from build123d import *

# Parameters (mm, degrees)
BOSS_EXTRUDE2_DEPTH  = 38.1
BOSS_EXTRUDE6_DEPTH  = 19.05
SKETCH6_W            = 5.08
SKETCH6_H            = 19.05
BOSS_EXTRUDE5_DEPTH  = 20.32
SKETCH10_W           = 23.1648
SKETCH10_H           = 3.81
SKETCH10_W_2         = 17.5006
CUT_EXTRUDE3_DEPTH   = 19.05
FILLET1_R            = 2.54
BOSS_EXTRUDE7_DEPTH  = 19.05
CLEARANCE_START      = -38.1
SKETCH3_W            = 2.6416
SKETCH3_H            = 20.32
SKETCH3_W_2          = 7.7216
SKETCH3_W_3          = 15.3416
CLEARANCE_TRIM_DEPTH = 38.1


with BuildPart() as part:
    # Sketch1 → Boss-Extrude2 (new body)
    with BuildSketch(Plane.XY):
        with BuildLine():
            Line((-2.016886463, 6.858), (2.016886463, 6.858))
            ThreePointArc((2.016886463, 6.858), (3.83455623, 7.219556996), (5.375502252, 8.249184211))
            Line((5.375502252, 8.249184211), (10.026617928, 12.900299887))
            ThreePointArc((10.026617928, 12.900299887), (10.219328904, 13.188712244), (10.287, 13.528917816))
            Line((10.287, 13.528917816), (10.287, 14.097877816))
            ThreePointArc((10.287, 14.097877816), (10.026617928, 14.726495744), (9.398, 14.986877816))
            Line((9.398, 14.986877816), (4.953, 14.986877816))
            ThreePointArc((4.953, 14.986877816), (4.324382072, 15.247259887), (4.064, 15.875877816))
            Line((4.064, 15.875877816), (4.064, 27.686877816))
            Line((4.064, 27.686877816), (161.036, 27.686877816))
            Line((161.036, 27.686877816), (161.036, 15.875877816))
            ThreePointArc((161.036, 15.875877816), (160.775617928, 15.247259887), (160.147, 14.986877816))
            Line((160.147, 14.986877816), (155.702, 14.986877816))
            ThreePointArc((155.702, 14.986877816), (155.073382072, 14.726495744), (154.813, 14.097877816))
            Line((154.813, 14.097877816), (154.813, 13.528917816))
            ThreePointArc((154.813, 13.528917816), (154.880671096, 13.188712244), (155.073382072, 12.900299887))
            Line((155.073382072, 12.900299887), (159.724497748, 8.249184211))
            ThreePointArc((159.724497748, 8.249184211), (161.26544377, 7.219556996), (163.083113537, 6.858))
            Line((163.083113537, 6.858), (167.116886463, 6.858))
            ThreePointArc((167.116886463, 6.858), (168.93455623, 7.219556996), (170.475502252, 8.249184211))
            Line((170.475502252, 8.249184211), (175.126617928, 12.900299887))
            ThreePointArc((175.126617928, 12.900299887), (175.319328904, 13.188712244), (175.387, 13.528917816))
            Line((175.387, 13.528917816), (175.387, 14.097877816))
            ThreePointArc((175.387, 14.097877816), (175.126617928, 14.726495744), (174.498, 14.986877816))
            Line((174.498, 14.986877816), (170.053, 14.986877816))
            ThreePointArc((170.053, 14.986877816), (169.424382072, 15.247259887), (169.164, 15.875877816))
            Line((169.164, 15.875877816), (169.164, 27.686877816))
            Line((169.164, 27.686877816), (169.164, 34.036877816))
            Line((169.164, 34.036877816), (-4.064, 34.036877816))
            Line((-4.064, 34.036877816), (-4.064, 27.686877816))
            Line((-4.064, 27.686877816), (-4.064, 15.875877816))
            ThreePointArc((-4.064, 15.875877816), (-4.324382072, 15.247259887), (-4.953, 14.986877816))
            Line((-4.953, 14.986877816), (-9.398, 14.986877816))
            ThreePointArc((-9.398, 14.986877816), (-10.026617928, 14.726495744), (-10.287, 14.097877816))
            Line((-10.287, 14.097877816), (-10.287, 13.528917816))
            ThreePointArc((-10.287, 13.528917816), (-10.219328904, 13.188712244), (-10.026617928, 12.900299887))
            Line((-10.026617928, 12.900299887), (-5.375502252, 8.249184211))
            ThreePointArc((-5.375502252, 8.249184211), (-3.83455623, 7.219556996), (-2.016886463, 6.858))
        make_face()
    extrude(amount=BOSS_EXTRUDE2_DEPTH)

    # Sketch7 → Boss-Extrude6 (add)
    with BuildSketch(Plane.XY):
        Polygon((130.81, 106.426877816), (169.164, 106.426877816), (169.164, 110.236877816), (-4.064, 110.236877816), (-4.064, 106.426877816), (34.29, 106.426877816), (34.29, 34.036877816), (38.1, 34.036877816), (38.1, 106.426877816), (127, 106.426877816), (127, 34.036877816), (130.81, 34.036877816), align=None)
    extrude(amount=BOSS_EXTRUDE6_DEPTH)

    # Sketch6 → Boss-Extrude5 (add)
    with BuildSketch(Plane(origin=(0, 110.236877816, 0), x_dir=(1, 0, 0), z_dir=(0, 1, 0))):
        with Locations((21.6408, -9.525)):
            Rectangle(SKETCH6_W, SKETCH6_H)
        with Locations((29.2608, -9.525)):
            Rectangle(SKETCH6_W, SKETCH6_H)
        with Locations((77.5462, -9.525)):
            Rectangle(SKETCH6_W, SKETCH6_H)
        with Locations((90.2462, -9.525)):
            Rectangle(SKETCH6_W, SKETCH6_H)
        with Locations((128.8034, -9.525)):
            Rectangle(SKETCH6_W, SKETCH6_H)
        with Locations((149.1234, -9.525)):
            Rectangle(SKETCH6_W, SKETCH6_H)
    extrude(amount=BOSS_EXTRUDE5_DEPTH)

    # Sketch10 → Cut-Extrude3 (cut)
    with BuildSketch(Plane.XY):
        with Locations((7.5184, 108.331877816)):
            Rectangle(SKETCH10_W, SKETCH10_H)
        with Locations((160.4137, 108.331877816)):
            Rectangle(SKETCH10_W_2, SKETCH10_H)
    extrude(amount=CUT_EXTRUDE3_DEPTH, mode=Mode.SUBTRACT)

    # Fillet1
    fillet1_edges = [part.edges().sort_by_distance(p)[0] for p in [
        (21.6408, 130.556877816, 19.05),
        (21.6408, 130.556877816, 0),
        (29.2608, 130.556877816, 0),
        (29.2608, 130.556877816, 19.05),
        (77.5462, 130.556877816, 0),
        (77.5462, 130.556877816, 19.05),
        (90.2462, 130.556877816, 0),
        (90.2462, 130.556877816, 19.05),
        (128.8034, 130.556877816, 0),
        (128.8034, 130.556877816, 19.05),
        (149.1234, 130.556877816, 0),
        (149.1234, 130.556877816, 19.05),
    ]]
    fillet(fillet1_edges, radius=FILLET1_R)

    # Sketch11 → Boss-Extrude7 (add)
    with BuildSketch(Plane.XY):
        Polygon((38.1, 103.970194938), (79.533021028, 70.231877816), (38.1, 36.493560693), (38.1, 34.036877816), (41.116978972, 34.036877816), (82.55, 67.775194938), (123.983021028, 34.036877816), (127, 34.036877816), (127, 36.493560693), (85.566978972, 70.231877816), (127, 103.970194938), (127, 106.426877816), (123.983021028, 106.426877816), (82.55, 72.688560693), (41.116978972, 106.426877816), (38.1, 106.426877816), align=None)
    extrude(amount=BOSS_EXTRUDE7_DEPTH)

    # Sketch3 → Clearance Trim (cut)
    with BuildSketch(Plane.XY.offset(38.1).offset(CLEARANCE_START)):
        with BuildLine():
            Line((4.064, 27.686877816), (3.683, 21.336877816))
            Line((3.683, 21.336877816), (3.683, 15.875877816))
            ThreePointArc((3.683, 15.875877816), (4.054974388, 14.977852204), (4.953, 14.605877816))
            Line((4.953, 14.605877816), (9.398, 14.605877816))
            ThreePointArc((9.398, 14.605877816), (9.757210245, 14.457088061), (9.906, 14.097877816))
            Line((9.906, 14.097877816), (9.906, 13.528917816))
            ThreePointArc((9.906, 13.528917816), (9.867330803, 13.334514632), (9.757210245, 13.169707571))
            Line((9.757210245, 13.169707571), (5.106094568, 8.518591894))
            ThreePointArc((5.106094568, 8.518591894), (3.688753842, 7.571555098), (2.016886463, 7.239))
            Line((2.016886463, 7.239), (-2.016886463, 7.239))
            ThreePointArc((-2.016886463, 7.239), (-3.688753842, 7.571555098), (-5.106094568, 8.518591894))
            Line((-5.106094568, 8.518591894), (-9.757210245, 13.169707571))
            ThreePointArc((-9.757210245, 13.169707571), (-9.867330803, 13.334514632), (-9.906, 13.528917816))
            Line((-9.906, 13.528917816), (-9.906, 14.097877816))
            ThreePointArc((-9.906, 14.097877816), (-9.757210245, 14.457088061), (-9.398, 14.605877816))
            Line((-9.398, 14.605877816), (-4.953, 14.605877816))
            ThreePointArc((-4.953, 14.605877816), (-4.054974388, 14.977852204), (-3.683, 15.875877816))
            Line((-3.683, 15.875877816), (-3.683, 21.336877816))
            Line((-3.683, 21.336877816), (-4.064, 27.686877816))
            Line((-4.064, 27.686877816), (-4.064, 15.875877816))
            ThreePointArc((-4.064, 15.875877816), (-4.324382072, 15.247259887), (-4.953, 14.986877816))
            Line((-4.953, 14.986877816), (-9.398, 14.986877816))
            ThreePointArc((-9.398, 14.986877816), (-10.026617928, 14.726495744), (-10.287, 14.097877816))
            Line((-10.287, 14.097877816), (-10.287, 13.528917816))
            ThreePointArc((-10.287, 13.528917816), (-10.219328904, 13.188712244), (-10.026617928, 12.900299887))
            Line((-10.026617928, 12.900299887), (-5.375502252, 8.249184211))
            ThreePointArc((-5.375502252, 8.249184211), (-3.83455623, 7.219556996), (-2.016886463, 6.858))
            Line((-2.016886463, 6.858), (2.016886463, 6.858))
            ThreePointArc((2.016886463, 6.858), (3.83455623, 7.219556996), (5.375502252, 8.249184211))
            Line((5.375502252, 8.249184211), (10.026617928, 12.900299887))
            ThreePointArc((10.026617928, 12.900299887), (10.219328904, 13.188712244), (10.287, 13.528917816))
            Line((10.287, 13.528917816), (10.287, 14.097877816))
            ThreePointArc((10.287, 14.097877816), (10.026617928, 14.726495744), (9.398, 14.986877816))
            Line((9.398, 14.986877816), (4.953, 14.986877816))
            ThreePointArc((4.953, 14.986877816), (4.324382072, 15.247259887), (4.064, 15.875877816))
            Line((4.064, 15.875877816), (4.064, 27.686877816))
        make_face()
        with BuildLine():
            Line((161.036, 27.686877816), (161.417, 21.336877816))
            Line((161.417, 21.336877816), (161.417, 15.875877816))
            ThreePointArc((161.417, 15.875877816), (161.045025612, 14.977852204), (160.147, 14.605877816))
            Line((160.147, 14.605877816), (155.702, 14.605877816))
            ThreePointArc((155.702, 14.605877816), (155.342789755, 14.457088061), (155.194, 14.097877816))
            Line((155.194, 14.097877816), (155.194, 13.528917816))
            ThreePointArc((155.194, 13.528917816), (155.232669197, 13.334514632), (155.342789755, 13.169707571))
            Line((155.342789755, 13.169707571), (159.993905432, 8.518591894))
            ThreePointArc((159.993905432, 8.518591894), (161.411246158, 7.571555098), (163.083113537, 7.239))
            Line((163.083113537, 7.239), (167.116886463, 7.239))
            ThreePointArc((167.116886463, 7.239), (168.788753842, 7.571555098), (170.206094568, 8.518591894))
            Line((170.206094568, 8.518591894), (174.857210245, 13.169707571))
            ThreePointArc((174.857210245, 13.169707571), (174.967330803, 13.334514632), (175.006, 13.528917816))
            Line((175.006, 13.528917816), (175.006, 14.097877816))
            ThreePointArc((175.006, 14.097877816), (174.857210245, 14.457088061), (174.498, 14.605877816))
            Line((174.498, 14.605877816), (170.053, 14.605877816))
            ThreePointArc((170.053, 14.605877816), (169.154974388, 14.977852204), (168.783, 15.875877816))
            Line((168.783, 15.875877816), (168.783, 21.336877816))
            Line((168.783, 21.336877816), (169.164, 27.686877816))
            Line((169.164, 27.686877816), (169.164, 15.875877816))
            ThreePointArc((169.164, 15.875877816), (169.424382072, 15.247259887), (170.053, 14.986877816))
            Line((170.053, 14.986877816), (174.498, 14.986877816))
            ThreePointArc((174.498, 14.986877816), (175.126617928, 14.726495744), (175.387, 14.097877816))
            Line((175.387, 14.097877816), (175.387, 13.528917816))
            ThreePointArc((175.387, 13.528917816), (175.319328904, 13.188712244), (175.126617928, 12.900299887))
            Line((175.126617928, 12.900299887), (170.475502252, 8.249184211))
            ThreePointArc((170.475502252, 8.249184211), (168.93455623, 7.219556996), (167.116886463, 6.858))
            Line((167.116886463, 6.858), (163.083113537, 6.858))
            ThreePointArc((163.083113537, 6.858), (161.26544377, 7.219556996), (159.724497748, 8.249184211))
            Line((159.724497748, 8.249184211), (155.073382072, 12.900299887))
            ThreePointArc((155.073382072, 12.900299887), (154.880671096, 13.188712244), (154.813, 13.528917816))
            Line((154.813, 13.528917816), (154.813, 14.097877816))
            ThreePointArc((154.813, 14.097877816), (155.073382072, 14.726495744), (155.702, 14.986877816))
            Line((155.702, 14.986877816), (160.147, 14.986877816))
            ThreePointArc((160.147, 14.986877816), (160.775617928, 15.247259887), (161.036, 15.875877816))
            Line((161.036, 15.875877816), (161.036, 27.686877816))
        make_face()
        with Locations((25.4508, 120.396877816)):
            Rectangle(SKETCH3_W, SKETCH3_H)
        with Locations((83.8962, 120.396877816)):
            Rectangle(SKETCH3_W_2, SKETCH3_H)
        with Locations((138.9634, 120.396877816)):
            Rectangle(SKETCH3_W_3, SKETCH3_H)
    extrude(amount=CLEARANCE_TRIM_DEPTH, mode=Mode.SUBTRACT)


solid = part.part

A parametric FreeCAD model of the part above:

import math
import FreeCAD as App
import Part
import Sketcher
from FreeCAD import Vector
Q = App.Units.Quantity


def edges_at(feature, points):
    """Names of the edges that pass closest to the given points."""
    edges = feature.Shape.Edges
    near = lambda p: min(range(len(edges)), key=lambda i: edges[i].distToShape(Part.Vertex(*p))[0])
    return sorted({f"Edge{near(p) + 1}" for p in points})


def add_polygon(sketch, points):
    """Adds a closed chain of lines whose ends are joined by coincident constraints."""
    first, n = sketch.GeometryCount, len(points)
    for a, b in zip(points, points[1:] + points[:1]):
        sketch.addGeometry(Part.LineSegment(App.Vector(*a, 0), App.Vector(*b, 0)), False)
    for i in range(n):
        sketch.addConstraint(Sketcher.Constraint("Coincident", first + i, 2, first + (i + 1) % n, 1))

doc = App.newDocument("Part")
body = doc.addObject("PartDesign::Body", "Body")

# Sketch on XY plane
sketch1 = doc.addObject("Sketcher::SketchObject", "Sketch")
body.addObject(sketch1)
sketch1.AttachmentSupport = (doc.XY_Plane, [""])
sketch1.MapMode = "FlatFace"
sketch1.addGeometry([
    Part.LineSegment(Vector(-2, 6.9, 0), Vector(2, 6.9, 0)),  # 0
    Part.ArcOfCircle(Part.Circle(Vector(2, 11.6, 0), Vector(0, 0, 1), 4.7), math.radians(-90), math.radians(-45)),  # 1
    Part.LineSegment(Vector(5.4, 8.2, 0), Vector(10, 12.9, 0)),  # 2
    Part.ArcOfCircle(Part.Circle(Vector(9.4, 13.5, 0), Vector(0, 0, 1), 0.9), math.radians(-45), math.radians(0)),  # 3
    Part.LineSegment(Vector(10.3, 13.5, 0), Vector(10.3, 14.1, 0)),  # 4
    Part.ArcOfCircle(Part.Circle(Vector(9.4, 14.1, 0), Vector(0, 0, 1), 0.9), math.radians(0), math.radians(90)),  # 5
    Part.LineSegment(Vector(9.4, 15, 0), Vector(5, 15, 0)),  # 6
    Part.ArcOfCircle(Part.Circle(Vector(5, 15.9, 0), Vector(0, 0, 1), 0.9), math.radians(180), math.radians(270)),  # 7
    Part.LineSegment(Vector(4.1, 15.9, 0), Vector(4.1, 27.7, 0)),  # 8
    Part.LineSegment(Vector(4.1, 27.7, 0), Vector(161, 27.7, 0)),  # 9
    Part.LineSegment(Vector(161, 27.7, 0), Vector(161, 15.9, 0)),  # 10
    Part.ArcOfCircle(Part.Circle(Vector(160.1, 15.9, 0), Vector(0, 0, 1), 0.9), math.radians(-90), math.radians(0)),  # 11
    Part.LineSegment(Vector(160.1, 15, 0), Vector(155.7, 15, 0)),  # 12
    Part.ArcOfCircle(Part.Circle(Vector(155.7, 14.1, 0), Vector(0, 0, 1), 0.9), math.radians(90), math.radians(180)),  # 13
    Part.LineSegment(Vector(154.8, 14.1, 0), Vector(154.8, 13.5, 0)),  # 14
    Part.ArcOfCircle(Part.Circle(Vector(155.7, 13.5, 0), Vector(0, 0, 1), 0.9), math.radians(-180), math.radians(-135)),  # 15
    Part.LineSegment(Vector(155.1, 12.9, 0), Vector(159.7, 8.2, 0)),  # 16
    Part.ArcOfCircle(Part.Circle(Vector(163.1, 11.6, 0), Vector(0, 0, 1), 4.7), math.radians(-135), math.radians(-90)),  # 17
    Part.LineSegment(Vector(163.1, 6.9, 0), Vector(167.1, 6.9, 0)),  # 18
    Part.ArcOfCircle(Part.Circle(Vector(167.1, 11.6, 0), Vector(0, 0, 1), 4.7), math.radians(-90), math.radians(-45)),  # 19
    Part.LineSegment(Vector(170.5, 8.2, 0), Vector(175.1, 12.9, 0)),  # 20
    Part.ArcOfCircle(Part.Circle(Vector(174.5, 13.5, 0), Vector(0, 0, 1), 0.9), math.radians(-45), math.radians(0)),  # 21
    Part.LineSegment(Vector(175.4, 13.5, 0), Vector(175.4, 14.1, 0)),  # 22
    Part.ArcOfCircle(Part.Circle(Vector(174.5, 14.1, 0), Vector(0, 0, 1), 0.9), math.radians(0), math.radians(90)),  # 23
    Part.LineSegment(Vector(174.5, 15, 0), Vector(170.1, 15, 0)),  # 24
    Part.ArcOfCircle(Part.Circle(Vector(170.1, 15.9, 0), Vector(0, 0, 1), 0.9), math.radians(180), math.radians(270)),  # 25
    Part.LineSegment(Vector(169.2, 15.9, 0), Vector(169.2, 34, 0)),  # 26
    Part.LineSegment(Vector(169.2, 34, 0), Vector(-4.1, 34, 0)),  # 27
    Part.LineSegment(Vector(-4.1, 34, 0), Vector(-4.1, 15.9, 0)),  # 28
    Part.ArcOfCircle(Part.Circle(Vector(-5, 15.9, 0), Vector(0, 0, 1), 0.9), math.radians(-90), math.radians(0)),  # 29
    Part.LineSegment(Vector(-5, 15, 0), Vector(-9.4, 15, 0)),  # 30
    Part.ArcOfCircle(Part.Circle(Vector(-9.4, 14.1, 0), Vector(0, 0, 1), 0.9), math.radians(90), math.radians(180)),  # 31
    Part.LineSegment(Vector(-10.3, 14.1, 0), Vector(-10.3, 13.5, 0)),  # 32
    Part.ArcOfCircle(Part.Circle(Vector(-9.4, 13.5, 0), Vector(0, 0, 1), 0.9), math.radians(-180), math.radians(-135)),  # 33
    Part.LineSegment(Vector(-10, 12.9, 0), Vector(-5.4, 8.2, 0)),  # 34
    Part.ArcOfCircle(Part.Circle(Vector(-2, 11.6, 0), Vector(0, 0, 1), 4.7), math.radians(-135), math.radians(-90)),  # 35
], False)
sketch1.addConstraint([
    Sketcher.Constraint("Tangent", 0, 2, 1, 1),
    Sketcher.Constraint("Tangent", 1, 2, 2, 1),
    Sketcher.Constraint("Tangent", 2, 2, 3, 1),
    Sketcher.Constraint("Tangent", 3, 2, 4, 1),
    Sketcher.Constraint("Tangent", 4, 2, 5, 1),
    Sketcher.Constraint("Tangent", 5, 2, 6, 1),
    Sketcher.Constraint("Tangent", 6, 2, 7, 2),
    Sketcher.Constraint("Tangent", 7, 1, 8, 1),
    Sketcher.Constraint("Coincident", 8, 2, 9, 1),
    Sketcher.Constraint("Coincident", 9, 2, 10, 1),
    Sketcher.Constraint("Tangent", 10, 2, 11, 2),
    Sketcher.Constraint("Tangent", 11, 1, 12, 1),
    Sketcher.Constraint("Tangent", 12, 2, 13, 1),
    Sketcher.Constraint("Tangent", 13, 2, 14, 1),
    Sketcher.Constraint("Tangent", 14, 2, 15, 1),
    Sketcher.Constraint("Tangent", 15, 2, 16, 1),
    Sketcher.Constraint("Tangent", 16, 2, 17, 1),
    Sketcher.Constraint("Tangent", 17, 2, 18, 1),
    Sketcher.Constraint("Tangent", 18, 2, 19, 1),
    Sketcher.Constraint("Tangent", 19, 2, 20, 1),
    Sketcher.Constraint("Tangent", 20, 2, 21, 1),
    Sketcher.Constraint("Tangent", 21, 2, 22, 1),
    Sketcher.Constraint("Tangent", 22, 2, 23, 1),
    Sketcher.Constraint("Tangent", 23, 2, 24, 1),
    Sketcher.Constraint("Tangent", 24, 2, 25, 2),
    Sketcher.Constraint("Tangent", 25, 1, 26, 1),
    Sketcher.Constraint("Coincident", 26, 2, 27, 1),
    Sketcher.Constraint("Coincident", 27, 2, 28, 1),
    Sketcher.Constraint("Tangent", 28, 2, 29, 2),
    Sketcher.Constraint("Tangent", 29, 1, 30, 1),
    Sketcher.Constraint("Tangent", 30, 2, 31, 1),
    Sketcher.Constraint("Tangent", 31, 2, 32, 1),
    Sketcher.Constraint("Tangent", 32, 2, 33, 1),
    Sketcher.Constraint("Tangent", 33, 2, 34, 1),
    Sketcher.Constraint("Tangent", 34, 2, 35, 1),
    Sketcher.Constraint("Tangent", 35, 2, 0, 1),
    Sketcher.Constraint("Horizontal", 0),
    Sketcher.Constraint("Vertical", 4),
    Sketcher.Constraint("Horizontal", 6),
    Sketcher.Constraint("Vertical", 8),
    Sketcher.Constraint("Horizontal", 9),
    Sketcher.Constraint("Vertical", 10),
    Sketcher.Constraint("Horizontal", 12),
    Sketcher.Constraint("Vertical", 14),
    Sketcher.Constraint("Horizontal", 18),
    Sketcher.Constraint("Vertical", 22),
    Sketcher.Constraint("Horizontal", 24),
    Sketcher.Constraint("Vertical", 26),
    Sketcher.Constraint("Horizontal", 27),
    Sketcher.Constraint("Vertical", 28),
    Sketcher.Constraint("Horizontal", 30),
    Sketcher.Constraint("Vertical", 32),
    Sketcher.Constraint("Equal", 3, 5),
    Sketcher.Constraint("Equal", 5, 7),
    Sketcher.Constraint("Equal", 7, 11),
    Sketcher.Constraint("Equal", 11, 13),
    Sketcher.Constraint("Equal", 13, 15),
    Sketcher.Constraint("Equal", 1, 17),
    Sketcher.Constraint("Equal", 17, 19),
    Sketcher.Constraint("Equal", 15, 21),
    Sketcher.Constraint("Equal", 21, 23),
    Sketcher.Constraint("Equal", 23, 25),
    Sketcher.Constraint("Equal", 25, 29),
    Sketcher.Constraint("Equal", 29, 31),
    Sketcher.Constraint("Equal", 31, 33),
    Sketcher.Constraint("Equal", 19, 35),
    Sketcher.Constraint("Symmetric", 7, 3, 29, 3, -2),
    Sketcher.Constraint("Symmetric", 3, 3, 33, 3, -2),
    Sketcher.Constraint("Perpendicular", 2, 16),
    Sketcher.Constraint("Perpendicular", 16, 20),
    Sketcher.Constraint("Perpendicular", 20, 34),
    Sketcher.Constraint("Horizontal", 7, 3, 11, 3),
    Sketcher.Constraint("Horizontal", 3, 3, 15, 3),
    Sketcher.Constraint("Horizontal", 1, 3, 17, 3),
    Sketcher.Constraint("Horizontal", 15, 3, 21, 3),
    Sketcher.Constraint("Horizontal", 13, 3, 23, 3),
    Sketcher.Constraint("Horizontal", 2, 2, 15, 2),
    Sketcher.Constraint("Equal", 6, 12),
    Sketcher.Constraint("Equal", 0, 18),
    Sketcher.Constraint("Equal", 12, 24),
    Sketcher.Constraint("Radius", 1, Q("0.187 in")),
    Sketcher.Constraint("Radius", 3, Q("0.035 in")),
    Sketcher.Constraint("DistanceX", 9, 1, 9, 2, Q("6.18 in")),
    Sketcher.Constraint("DistanceX", 27, 2, 27, 1, Q("6.82 in")),
    Sketcher.Constraint("DistanceY", 6, 2, 8, 2, Q("0.5 in")),
    Sketcher.Constraint("DistanceX", 6, 2, 6, 1, Q("0.175 in")),
    Sketcher.Constraint("DistanceY", 26, 1, 26, 2, Q("0.715 in")),
    Sketcher.Constraint("DistanceY", -1, 1, 0, 2, Q("0.27 in")),
    Sketcher.Constraint("DistanceY", 4, 1, 4, 2, Q("0.0224 in")),
    Sketcher.Constraint("DistanceY", -1, 1, 2, 2, 12.9003),
])
pad1 = doc.addObject("PartDesign::Pad", "Pad")
body.addObject(pad1)
pad1.Profile = sketch1
pad1.Length = Q("1.5 in")

# Sketch on XY plane
sketch2 = doc.addObject("Sketcher::SketchObject", "Sketch001")
body.addObject(sketch2)
sketch2.AttachmentSupport = (doc.XY_Plane, [""])
sketch2.MapMode = "FlatFace"
add_polygon(sketch2, [(130.8, 106.4), (169.2, 106.4), (169.2, 110.2), (-4.1, 110.2), (-4.1, 106.4), (34.3, 106.4), (34.3, 34), (38.1, 34), (38.1, 106.4), (127, 106.4), (127, 34), (130.8, 34)])  # lines 0-11
sketch2.addConstraint([
    Sketcher.Constraint("Horizontal", 0),
    Sketcher.Constraint("Vertical", 1),
    Sketcher.Constraint("Horizontal", 2),
    Sketcher.Constraint("Vertical", 3),
    Sketcher.Constraint("Horizontal", 4),
    Sketcher.Constraint("Vertical", 5),
    Sketcher.Constraint("Horizontal", 6),
    Sketcher.Constraint("Vertical", 7),
    Sketcher.Constraint("Horizontal", 8),
    Sketcher.Constraint("Vertical", 9),
    Sketcher.Constraint("Horizontal", 10),
    Sketcher.Constraint("Vertical", 11),
    Sketcher.Constraint("Horizontal", 0, 2, 3, 2),
    Sketcher.Constraint("Horizontal", 4, 2, 7, 2),
    Sketcher.Constraint("Horizontal", 6, 2, 9, 2),
    Sketcher.Constraint("Equal", 0, 4),
    Sketcher.Constraint("Equal", 6, 10),
    Sketcher.Constraint("Equal", 10, 1),
    Sketcher.Constraint("DistanceX", 8, 1, 8, 2, Q("3.5 in")),
    Sketcher.Constraint("DistanceX", -1, 1, 8, 2, Q("5 in")),
    Sketcher.Constraint("DistanceY", 5, 2, 2, 2, Q("3 in")),
    Sketcher.Constraint("DistanceX", 0, 1, 0, 2, Q("1.51 in")),
    Sketcher.Constraint("DistanceX", 2, 2, 2, 1, Q("6.82 in")),
    Sketcher.Constraint("DistanceY", -1, 1, 0, 2, 106.426878),
])
pad2 = doc.addObject("PartDesign::Pad", "Pad001")
body.addObject(pad2)
pad2.Profile = sketch2
pad2.Length = Q("0.75 in")

# Sketch on XZ plane
sketch3 = doc.addObject("Sketcher::SketchObject", "Sketch002")
body.addObject(sketch3)
sketch3.AttachmentSupport = (doc.XZ_Plane, [""])
sketch3.MapMode = "FlatFace"
sketch3.AttachmentOffset = App.Placement(Vector(0, 0, -110.236878), App.Rotation())
add_polygon(sketch3, [(19, 0), (19, 19), (24, 19), (24, 0)])  # lines 0-3
add_polygon(sketch3, [(27, 0), (27, 19), (32, 19), (32, 0)])  # lines 4-7
add_polygon(sketch3, [(75, 0), (75, 19), (80, 19), (80, 0)])  # lines 8-11
add_polygon(sketch3, [(88, 0), (88, 19), (93, 19), (93, 0)])  # lines 12-15
add_polygon(sketch3, [(126, 0), (126, 19), (131, 19), (131, 0)])  # lines 16-19
add_polygon(sketch3, [(147, 0), (147, 19), (152, 19), (152, 0)])  # lines 20-23
sketch3.addConstraint([
    Sketcher.Constraint("Vertical", 0),
    Sketcher.Constraint("Horizontal", 1),
    Sketcher.Constraint("Vertical", 2),
    Sketcher.Constraint("Horizontal", 3),
    Sketcher.Constraint("Vertical", 4),
    Sketcher.Constraint("Horizontal", 5),
    Sketcher.Constraint("Vertical", 6),
    Sketcher.Constraint("Horizontal", 7),
    Sketcher.Constraint("Vertical", 8),
    Sketcher.Constraint("Horizontal", 9),
    Sketcher.Constraint("Vertical", 10),
    Sketcher.Constraint("Horizontal", 11),
    Sketcher.Constraint("Vertical", 12),
    Sketcher.Constraint("Horizontal", 13),
    Sketcher.Constraint("Vertical", 14),
    Sketcher.Constraint("Horizontal", 15),
    Sketcher.Constraint("Vertical", 16),
    Sketcher.Constraint("Horizontal", 17),
    Sketcher.Constraint("Vertical", 18),
    Sketcher.Constraint("Horizontal", 19),
    Sketcher.Constraint("Vertical", 20),
    Sketcher.Constraint("Horizontal", 21),
    Sketcher.Constraint("Vertical", 22),
    Sketcher.Constraint("Horizontal", 23),
    Sketcher.Constraint("PointOnObject", 2, 2, -1),
    Sketcher.Constraint("PointOnObject", 6, 2, -1),
    Sketcher.Constraint("PointOnObject", 10, 2, -1),
    Sketcher.Constraint("PointOnObject", 14, 2, -1),
    Sketcher.Constraint("PointOnObject", 18, 2, -1),
    Sketcher.Constraint("PointOnObject", 22, 2, -1),
    Sketcher.Constraint("Horizontal", 1, 2, 4, 2),
    Sketcher.Constraint("Horizontal", 5, 2, 8, 2),
    Sketcher.Constraint("Horizontal", 9, 2, 12, 2),
    Sketcher.Constraint("Horizontal", 13, 2, 16, 2),
    Sketcher.Constraint("Horizontal", 17, 2, 20, 2),
    Sketcher.Constraint("Equal", 3, 5),
    Sketcher.Constraint("Equal", 7, 9),
    Sketcher.Constraint("Equal", 11, 13),
    Sketcher.Constraint("Equal", 15, 17),
    Sketcher.Constraint("Equal", 19, 21),
    Sketcher.Constraint("DistanceX", 1, 1, 1, 2, Q("0.2 in")),
    Sketcher.Constraint("DistanceX", 16, 2, 21, 2, Q("1 in")),
    Sketcher.Constraint("DistanceY", 0, 1, 0, 2, Q("0.75 in")),
    Sketcher.Constraint("DistanceX", 1, 2, 4, 2, Q("0.1 in")),
    Sketcher.Constraint("DistanceX", 9, 2, 12, 2, Q("0.3 in")),
    Sketcher.Constraint("DistanceX", -1, 1, 0, 2, Q("0.752 in")),
    Sketcher.Constraint("DistanceX", -1, 1, 8, 2, Q("2.953 in")),
    Sketcher.Constraint("DistanceX", -1, 1, 16, 2, Q("4.971 in")),
])
pad3 = doc.addObject("PartDesign::Pad", "Pad002")
body.addObject(pad3)
pad3.Profile = sketch3
pad3.Length = Q("0.8 in")
pad3.Reversed = True

# Sketch on XY plane
sketch4 = doc.addObject("Sketcher::SketchObject", "Sketch003")
body.addObject(sketch4)
sketch4.AttachmentSupport = (doc.XY_Plane, [""])
sketch4.MapMode = "FlatFace"
add_polygon(sketch4, [(-4.1, 110.2), (-4.1, 106.4), (19.1, 106.4), (19.1, 110.2)])  # lines 0-3
add_polygon(sketch4, [(151.7, 110.2), (151.7, 106.4), (169.2, 106.4), (169.2, 110.2)])  # lines 4-7
sketch4.addConstraint([
    Sketcher.Constraint("Vertical", 0),
    Sketcher.Constraint("Horizontal", 1),
    Sketcher.Constraint("Vertical", 2),
    Sketcher.Constraint("Horizontal", 3),
    Sketcher.Constraint("Vertical", 4),
    Sketcher.Constraint("Horizontal", 5),
    Sketcher.Constraint("Vertical", 6),
    Sketcher.Constraint("Horizontal", 7),
    Sketcher.Constraint("Horizontal", 1, 2, 4, 2),
    Sketcher.Constraint("Horizontal", 3, 2, 6, 2),
    Sketcher.Constraint("DistanceY", 0, 2, 0, 1, Q("0.15 in")),
    Sketcher.Constraint("DistanceX", 1, 1, 1, 2, Q("0.912 in")),
    Sketcher.Constraint("DistanceX", 5, 1, 5, 2, Q("0.689 in")),
    Sketcher.Constraint("DistanceX", 0, 2, -1, 1, Q("0.16 in")),
    Sketcher.Constraint("DistanceX", -1, 1, 5, 2, Q("6.66 in")),
    Sketcher.Constraint("DistanceY", -1, 1, 0, 2, 106.426878),
])
pocket1 = doc.addObject("PartDesign::Pocket", "Pocket")
body.addObject(pocket1)
pocket1.Profile = sketch4
pocket1.Length = Q("0.75 in")
pocket1.Reversed = True
doc.recompute()

fillet = doc.addObject("PartDesign::Fillet", "Fillet")
body.addObject(fillet)
fillet.Base = (pocket1, edges_at(pocket1, [
    (21.641, 130.557, 19.05),
    (21.641, 130.557, 0),
    (29.261, 130.557, 0),
    (29.261, 130.557, 19.05),
    (77.546, 130.557, 0),
    (77.546, 130.557, 19.05),
    (90.246, 130.557, 0),
    (90.246, 130.557, 19.05),
    (128.803, 130.557, 0),
    (128.803, 130.557, 19.05),
    (149.123, 130.557, 0),
    (149.123, 130.557, 19.05),
]))
fillet.Radius = Q("0.1 in")

# Sketch on XY plane
sketch5 = doc.addObject("Sketcher::SketchObject", "Sketch004")
body.addObject(sketch5)
sketch5.AttachmentSupport = (doc.XY_Plane, [""])
sketch5.MapMode = "FlatFace"
add_polygon(sketch5, [(38.1, 104), (79.5, 70.2), (38.1, 36.5), (38.1, 34), (41.1, 34), (82.5, 67.8), (124, 34), (127, 34), (127, 36.5), (85.6, 70.2), (127, 104), (127, 106.4), (124, 106.4), (82.5, 72.7), (41.1, 106.4), (38.1, 106.4)])  # lines 0-15
sketch5.addConstraint([
    Sketcher.Constraint("Vertical", 2),
    Sketcher.Constraint("Horizontal", 3),
    Sketcher.Constraint("Horizontal", 6),
    Sketcher.Constraint("Vertical", 7),
    Sketcher.Constraint("Vertical", 10),
    Sketcher.Constraint("Horizontal", 11),
    Sketcher.Constraint("Horizontal", 14),
    Sketcher.Constraint("Vertical", 15),
    Sketcher.Constraint("Parallel", 1, 4),
    Sketcher.Constraint("Parallel", 0, 5),
    Sketcher.Constraint("Parallel", 5, 8),
    Sketcher.Constraint("Parallel", 4, 9),
    Sketcher.Constraint("Parallel", 9, 12),
    Sketcher.Constraint("Parallel", 8, 13),
    Sketcher.Constraint("Horizontal", 3, 2, 5, 2),
    Sketcher.Constraint("Horizontal", 1, 2, 7, 2),
    Sketcher.Constraint("Horizontal", 0, 2, 8, 2),
    Sketcher.Constraint("Horizontal", 11, 2, 13, 2),
    Sketcher.Constraint("Horizontal", 9, 2, 15, 2),
    Sketcher.Constraint("Vertical", 7, 2, 9, 2),
    Sketcher.Constraint("Vertical", 5, 2, 11, 2),
    Sketcher.Constraint("Vertical", 4, 2, 12, 2),
    Sketcher.Constraint("Vertical", 3, 2, 13, 2),
    Sketcher.Constraint("Equal", 3, 6),
    Sketcher.Constraint("Equal", 7, 10),
    Sketcher.Constraint("Equal", 1, 4),
    Sketcher.Constraint("DistanceX", -1, 1, 6, 2, Q("5 in")),
    Sketcher.Constraint("DistanceX", -1, 1, 1, 2, Q("1.5 in")),
    Sketcher.Constraint("DistanceY", 2, 2, 0, 2, Q("1.425 in")),
    Sketcher.Constraint("DistanceX", 3, 1, 3, 2, 3.016979),
    Sketcher.Constraint("DistanceY", 2, 2, 2, 1, 2.456683),
    Sketcher.Constraint("DistanceY", -1, 1, 1, 2, 36.493561),
])
pad4 = doc.addObject("PartDesign::Pad", "Pad003")
body.addObject(pad4)
pad4.Profile = sketch5
pad4.Length = Q("0.75 in")

# Sketch on XY plane
sketch6 = doc.addObject("Sketcher::SketchObject", "Sketch005")
body.addObject(sketch6)
sketch6.AttachmentSupport = (doc.XY_Plane, [""])
sketch6.MapMode = "FlatFace"
sketch6.addGeometry(Part.LineSegment(Vector(4.06, 27.69, 0), Vector(3.68, 21.34, 0)), False)  # 0
sketch6.addGeometry(Part.LineSegment(Vector(3.68, 21.34, 0), Vector(3.68, 15.88, 0)), False)  # 1
sketch6.addGeometry(Part.ArcOfCircle(Part.Circle(Vector(4.95, 15.88, 0), Vector(0, 0, 1), 1.27), math.radians(180), math.radians(270)), False)  # 2
sketch6.addGeometry(Part.LineSegment(Vector(4.95, 14.61, 0), Vector(9.4, 14.61, 0)), False)  # 3
sketch6.addGeometry(Part.ArcOfCircle(Part.Circle(Vector(9.4, 14.1, 0), Vector(0, 0, 1), 0.51), math.radians(0), math.radians(90)), False)  # 4
sketch6.addGeometry(Part.LineSegment(Vector(9.91, 14.1, 0), Vector(9.91, 13.53, 0)), False)  # 5
sketch6.addGeometry(Part.ArcOfCircle(Part.Circle(Vector(9.4, 13.53, 0), Vector(0, 0, 1), 0.51), math.radians(-45), math.radians(0)), False)  # 6
sketch6.addGeometry(Part.LineSegment(Vector(9.76, 13.17, 0), Vector(5.11, 8.52, 0)), False)  # 7
sketch6.addGeometry(Part.ArcOfCircle(Part.Circle(Vector(2.02, 11.61, 0), Vector(0, 0, 1), 4.37), math.radians(-90), math.radians(-45)), False)  # 8
sketch6.addGeometry(Part.LineSegment(Vector(2.02, 7.24, 0), Vector(-2.02, 7.24, 0)), False)  # 9
sketch6.addGeometry(Part.ArcOfCircle(Part.Circle(Vector(-2.02, 11.61, 0), Vector(0, 0, 1), 4.37), math.radians(-135), math.radians(-90)), False)  # 10
sketch6.addGeometry(Part.LineSegment(Vector(-5.11, 8.52, 0), Vector(-9.76, 13.17, 0)), False)  # 11
sketch6.addGeometry(Part.ArcOfCircle(Part.Circle(Vector(-9.4, 13.53, 0), Vector(0, 0, 1), 0.51), math.radians(180), math.radians(225)), False)  # 12
sketch6.addGeometry(Part.LineSegment(Vector(-9.91, 13.53, 0), Vector(-9.91, 14.1, 0)), False)  # 13
sketch6.addGeometry(Part.ArcOfCircle(Part.Circle(Vector(-9.4, 14.1, 0), Vector(0, 0, 1), 0.51), math.radians(90), math.radians(180)), False)  # 14
sketch6.addGeometry(Part.LineSegment(Vector(-9.4, 14.61, 0), Vector(-4.95, 14.61, 0)), False)  # 15
sketch6.addGeometry(Part.ArcOfCircle(Part.Circle(Vector(-4.95, 15.88, 0), Vector(0, 0, 1), 1.27), math.radians(-90), math.radians(0)), False)  # 16
sketch6.addGeometry(Part.LineSegment(Vector(-3.68, 15.88, 0), Vector(-3.68, 21.34, 0)), False)  # 17
sketch6.addGeometry(Part.LineSegment(Vector(-3.68, 21.34, 0), Vector(-4.06, 27.69, 0)), False)  # 18
sketch6.addGeometry(Part.LineSegment(Vector(-4.06, 27.69, 0), Vector(-4.06, 15.88, 0)), False)  # 19
sketch6.addGeometry(Part.ArcOfCircle(Part.Circle(Vector(-4.95, 15.88, 0), Vector(0, 0, 1), 0.89), math.radians(-90), math.radians(0)), False)  # 20
sketch6.addGeometry(Part.LineSegment(Vector(-4.95, 14.99, 0), Vector(-9.4, 14.99, 0)), False)  # 21
sketch6.addGeometry(Part.ArcOfCircle(Part.Circle(Vector(-9.4, 14.1, 0), Vector(0, 0, 1), 0.89), math.radians(90), math.radians(180)), False)  # 22
sketch6.addGeometry(Part.LineSegment(Vector(-10.29, 14.1, 0), Vector(-10.29, 13.53, 0)), False)  # 23
sketch6.addGeometry(Part.ArcOfCircle(Part.Circle(Vector(-9.4, 13.53, 0), Vector(0, 0, 1), 0.89), math.radians(-180), math.radians(-135)), False)  # 24
sketch6.addGeometry(Part.LineSegment(Vector(-10.03, 12.9, 0), Vector(-5.38, 8.25, 0)), False)  # 25
sketch6.addGeometry(Part.ArcOfCircle(Part.Circle(Vector(-2.02, 11.61, 0), Vector(0, 0, 1), 4.75), math.radians(-135), math.radians(-90)), False)  # 26
sketch6.addGeometry(Part.LineSegment(Vector(-2.02, 6.86, 0), Vector(2.02, 6.86, 0)), False)  # 27
sketch6.addGeometry(Part.ArcOfCircle(Part.Circle(Vector(2.02, 11.61, 0), Vector(0, 0, 1), 4.75), math.radians(-90), math.radians(-45)), False)  # 28
sketch6.addGeometry(Part.LineSegment(Vector(5.38, 8.25, 0), Vector(10.03, 12.9, 0)), False)  # 29
sketch6.addGeometry(Part.ArcOfCircle(Part.Circle(Vector(9.4, 13.53, 0), Vector(0, 0, 1), 0.89), math.radians(-45), math.radians(0)), False)  # 30
sketch6.addGeometry(Part.LineSegment(Vector(10.29, 13.53, 0), Vector(10.29, 14.1, 0)), False)  # 31
sketch6.addGeometry(Part.ArcOfCircle(Part.Circle(Vector(9.4, 14.1, 0), Vector(0, 0, 1), 0.89), math.radians(0), math.radians(90)), False)  # 32
sketch6.addGeometry(Part.LineSegment(Vector(9.4, 14.99, 0), Vector(4.95, 14.99, 0)), False)  # 33
sketch6.addGeometry(Part.ArcOfCircle(Part.Circle(Vector(4.95, 15.88, 0), Vector(0, 0, 1), 0.89), math.radians(180), math.radians(270)), False)  # 34
sketch6.addGeometry(Part.LineSegment(Vector(4.06, 15.88, 0), Vector(4.06, 27.69, 0)), False)  # 35
sketch6.addGeometry(Part.LineSegment(Vector(161.42, 21.34, 0), Vector(161.04, 27.69, 0)), False)  # 36
sketch6.addGeometry(Part.LineSegment(Vector(161.04, 27.69, 0), Vector(161.04, 15.88, 0)), False)  # 37
sketch6.addGeometry(Part.ArcOfCircle(Part.Circle(Vector(160.15, 15.88, 0), Vector(0, 0, 1), 0.89), math.radians(-90), math.radians(0)), False)  # 38
sketch6.addGeometry(Part.LineSegment(Vector(160.15, 14.99, 0), Vector(155.7, 14.99, 0)), False)  # 39
sketch6.addGeometry(Part.ArcOfCircle(Part.Circle(Vector(155.7, 14.1, 0), Vector(0, 0, 1), 0.89), math.radians(90), math.radians(180)), False)  # 40
sketch6.addGeometry(Part.LineSegment(Vector(154.81, 14.1, 0), Vector(154.81, 13.53, 0)), False)  # 41
sketch6.addGeometry(Part.ArcOfCircle(Part.Circle(Vector(155.7, 13.53, 0), Vector(0, 0, 1), 0.89), math.radians(-180), math.radians(-135)), False)  # 42
sketch6.addGeometry(Part.LineSegment(Vector(155.07, 12.9, 0), Vector(159.72, 8.25, 0)), False)  # 43
sketch6.addGeometry(Part.ArcOfCircle(Part.Circle(Vector(163.08, 11.61, 0), Vector(0, 0, 1), 4.75), math.radians(-135), math.radians(-90)), False)  # 44
sketch6.addGeometry(Part.LineSegment(Vector(163.08, 6.86, 0), Vector(167.12, 6.86, 0)), False)  # 45
sketch6.addGeometry(Part.ArcOfCircle(Part.Circle(Vector(167.12, 11.61, 0), Vector(0, 0, 1), 4.75), math.radians(-90), math.radians(-45)), False)  # 46
sketch6.addGeometry(Part.LineSegment(Vector(170.48, 8.25, 0), Vector(175.13, 12.9, 0)), False)  # 47
sketch6.addGeometry(Part.ArcOfCircle(Part.Circle(Vector(174.5, 13.53, 0), Vector(0, 0, 1), 0.89), math.radians(-45), math.radians(0)), False)  # 48
sketch6.addGeometry(Part.LineSegment(Vector(175.39, 13.53, 0), Vector(175.39, 14.1, 0)), False)  # 49
sketch6.addGeometry(Part.ArcOfCircle(Part.Circle(Vector(174.5, 14.1, 0), Vector(0, 0, 1), 0.89), math.radians(0), math.radians(90)), False)  # 50
sketch6.addGeometry(Part.LineSegment(Vector(174.5, 14.99, 0), Vector(170.05, 14.99, 0)), False)  # 51
sketch6.addGeometry(Part.ArcOfCircle(Part.Circle(Vector(170.05, 15.88, 0), Vector(0, 0, 1), 0.89), math.radians(180), math.radians(270)), False)  # 52
sketch6.addGeometry(Part.LineSegment(Vector(169.16, 15.88, 0), Vector(169.16, 27.69, 0)), False)  # 53
sketch6.addGeometry(Part.LineSegment(Vector(169.16, 27.69, 0), Vector(168.78, 21.34, 0)), False)  # 54
sketch6.addGeometry(Part.LineSegment(Vector(168.78, 21.34, 0), Vector(168.78, 15.88, 0)), False)  # 55
sketch6.addGeometry(Part.ArcOfCircle(Part.Circle(Vector(170.05, 15.88, 0), Vector(0, 0, 1), 1.27), math.radians(180), math.radians(270)), False)  # 56
sketch6.addGeometry(Part.LineSegment(Vector(170.05, 14.61, 0), Vector(174.5, 14.61, 0)), False)  # 57
sketch6.addGeometry(Part.ArcOfCircle(Part.Circle(Vector(174.5, 14.1, 0), Vector(0, 0, 1), 0.51), math.radians(0), math.radians(90)), False)  # 58
sketch6.addGeometry(Part.LineSegment(Vector(175.01, 14.1, 0), Vector(175.01, 13.53, 0)), False)  # 59
sketch6.addGeometry(Part.ArcOfCircle(Part.Circle(Vector(174.5, 13.53, 0), Vector(0, 0, 1), 0.51), math.radians(-45), math.radians(0)), False)  # 60
sketch6.addGeometry(Part.LineSegment(Vector(174.86, 13.17, 0), Vector(170.21, 8.52, 0)), False)  # 61
sketch6.addGeometry(Part.ArcOfCircle(Part.Circle(Vector(167.12, 11.61, 0), Vector(0, 0, 1), 4.37), math.radians(-90), math.radians(-45)), False)  # 62
sketch6.addGeometry(Part.LineSegment(Vector(167.12, 7.24, 0), Vector(163.08, 7.24, 0)), False)  # 63
sketch6.addGeometry(Part.ArcOfCircle(Part.Circle(Vector(163.08, 11.61, 0), Vector(0, 0, 1), 4.37), math.radians(-135), math.radians(-90)), False)  # 64
sketch6.addGeometry(Part.LineSegment(Vector(159.99, 8.52, 0), Vector(155.34, 13.17, 0)), False)  # 65
sketch6.addGeometry(Part.ArcOfCircle(Part.Circle(Vector(155.7, 13.53, 0), Vector(0, 0, 1), 0.51), math.radians(180), math.radians(225)), False)  # 66
sketch6.addGeometry(Part.LineSegment(Vector(155.19, 13.53, 0), Vector(155.19, 14.1, 0)), False)  # 67
sketch6.addGeometry(Part.ArcOfCircle(Part.Circle(Vector(155.7, 14.1, 0), Vector(0, 0, 1), 0.51), math.radians(90), math.radians(180)), False)  # 68
sketch6.addGeometry(Part.LineSegment(Vector(155.7, 14.61, 0), Vector(160.15, 14.61, 0)), False)  # 69
sketch6.addGeometry(Part.ArcOfCircle(Part.Circle(Vector(160.15, 15.88, 0), Vector(0, 0, 1), 1.27), math.radians(-90), math.radians(0)), False)  # 70
sketch6.addGeometry(Part.LineSegment(Vector(161.42, 15.88, 0), Vector(161.42, 21.34, 0)), False)  # 71
add_polygon(sketch6, [(24.13, 130.56), (24.13, 110.24), (26.77, 110.24), (26.77, 130.56)])  # lines 72-75
add_polygon(sketch6, [(80.04, 130.56), (80.04, 110.24), (87.76, 110.24), (87.76, 130.56)])  # lines 76-79
add_polygon(sketch6, [(131.29, 130.56), (131.29, 110.24), (146.63, 110.24), (146.63, 130.56)])  # lines 80-83
sketch6.addConstraint([
    Sketcher.Constraint("Coincident", 0, 2, 1, 1),
    Sketcher.Constraint("Tangent", 1, 2, 2, 1),
    Sketcher.Constraint("Tangent", 2, 2, 3, 1),
    Sketcher.Constraint("Tangent", 3, 2, 4, 2),
    Sketcher.Constraint("Tangent", 4, 1, 5, 1),
    Sketcher.Constraint("Tangent", 5, 2, 6, 2),
    Sketcher.Constraint("Tangent", 6, 1, 7, 1),
    Sketcher.Constraint("Tangent", 7, 2, 8, 2),
    Sketcher.Constraint("Tangent", 8, 1, 9, 1),
    Sketcher.Constraint("Tangent", 9, 2, 10, 2),
    Sketcher.Constraint("Tangent", 10, 1, 11, 1),
    Sketcher.Constraint("Tangent", 11, 2, 12, 2),
    Sketcher.Constraint("Tangent", 12, 1, 13, 1),
    Sketcher.Constraint("Tangent", 13, 2, 14, 2),
    Sketcher.Constraint("Tangent", 14, 1, 15, 1),
    Sketcher.Constraint("Tangent", 15, 2, 16, 1),
    Sketcher.Constraint("Tangent", 16, 2, 17, 1),
    Sketcher.Constraint("Coincident", 17, 2, 18, 1),
    Sketcher.Constraint("Coincident", 18, 2, 19, 1),
    Sketcher.Constraint("Tangent", 19, 2, 20, 2),
    Sketcher.Constraint("Tangent", 20, 1, 21, 1),
    Sketcher.Constraint("Tangent", 21, 2, 22, 1),
    Sketcher.Constraint("Tangent", 22, 2, 23, 1),
    Sketcher.Constraint("Tangent", 23, 2, 24, 1),
    Sketcher.Constraint("Tangent", 24, 2, 25, 1),
    Sketcher.Constraint("Tangent", 25, 2, 26, 1),
    Sketcher.Constraint("Tangent", 26, 2, 27, 1),
    Sketcher.Constraint("Tangent", 27, 2, 28, 1),
    Sketcher.Constraint("Tangent", 28, 2, 29, 1),
    Sketcher.Constraint("Tangent", 29, 2, 30, 1),
    Sketcher.Constraint("Tangent", 30, 2, 31, 1),
    Sketcher.Constraint("Tangent", 31, 2, 32, 1),
    Sketcher.Constraint("Tangent", 32, 2, 33, 1),
    Sketcher.Constraint("Tangent", 33, 2, 34, 2),
    Sketcher.Constraint("Tangent", 34, 1, 35, 1),
    Sketcher.Constraint("Coincident", 35, 2, 0, 1),
    Sketcher.Constraint("Coincident", 36, 2, 37, 1),
    Sketcher.Constraint("Tangent", 37, 2, 38, 2),
    Sketcher.Constraint("Tangent", 38, 1, 39, 1),
    Sketcher.Constraint("Tangent", 39, 2, 40, 1),
    Sketcher.Constraint("Tangent", 40, 2, 41, 1),
    Sketcher.Constraint("Tangent", 41, 2, 42, 1),
    Sketcher.Constraint("Tangent", 42, 2, 43, 1),
    Sketcher.Constraint("Tangent", 43, 2, 44, 1),
    Sketcher.Constraint("Tangent", 44, 2, 45, 1),
    Sketcher.Constraint("Tangent", 45, 2, 46, 1),
    Sketcher.Constraint("Tangent", 46, 2, 47, 1),
    Sketcher.Constraint("Tangent", 47, 2, 48, 1),
    Sketcher.Constraint("Tangent", 48, 2, 49, 1),
    Sketcher.Constraint("Tangent", 49, 2, 50, 1),
    Sketcher.Constraint("Tangent", 50, 2, 51, 1),
    Sketcher.Constraint("Tangent", 51, 2, 52, 2),
    Sketcher.Constraint("Tangent", 52, 1, 53, 1),
    Sketcher.Constraint("Coincident", 53, 2, 54, 1),
    Sketcher.Constraint("Coincident", 54, 2, 55, 1),
    Sketcher.Constraint("Tangent", 55, 2, 56, 1),
    Sketcher.Constraint("Tangent", 56, 2, 57, 1),
    Sketcher.Constraint("Tangent", 57, 2, 58, 2),
    Sketcher.Constraint("Tangent", 58, 1, 59, 1),
    Sketcher.Constraint("Tangent", 59, 2, 60, 2),
    Sketcher.Constraint("Tangent", 60, 1, 61, 1),
    Sketcher.Constraint("Tangent", 61, 2, 62, 2),
    Sketcher.Constraint("Tangent", 62, 1, 63, 1),
    Sketcher.Constraint("Tangent", 63, 2, 64, 2),
    Sketcher.Constraint("Tangent", 64, 1, 65, 1),
    Sketcher.Constraint("Tangent", 65, 2, 66, 2),
    Sketcher.Constraint("Tangent", 66, 1, 67, 1),
    Sketcher.Constraint("Tangent", 67, 2, 68, 2),
    Sketcher.Constraint("Tangent", 68, 1, 69, 1),
    Sketcher.Constraint("Tangent", 69, 2, 70, 1),
    Sketcher.Constraint("Tangent", 70, 2, 71, 1),
    Sketcher.Constraint("Coincident", 71, 2, 36, 1),
    Sketcher.Constraint("Vertical", 1),
    Sketcher.Constraint("Horizontal", 3),
    Sketcher.Constraint("Vertical", 5),
    Sketcher.Constraint("Horizontal", 9),
    Sketcher.Constraint("Vertical", 13),
    Sketcher.Constraint("Horizontal", 15),
    Sketcher.Constraint("Vertical", 17),
    Sketcher.Constraint("Vertical", 19),
    Sketcher.Constraint("Horizontal", 21),
    Sketcher.Constraint("Vertical", 23),
    Sketcher.Constraint("Horizontal", 27),
    Sketcher.Constraint("Vertical", 31),
    Sketcher.Constraint("Horizontal", 33),
    Sketcher.Constraint("Vertical", 35),
    Sketcher.Constraint("Vertical", 37),
    Sketcher.Constraint("Horizontal", 39),
    Sketcher.Constraint("Vertical", 41),
    Sketcher.Constraint("Horizontal", 45),
    Sketcher.Constraint("Vertical", 49),
    Sketcher.Constraint("Horizontal", 51),
    Sketcher.Constraint("Vertical", 53),
    Sketcher.Constraint("Vertical", 55),
    Sketcher.Constraint("Horizontal", 57),
    Sketcher.Constraint("Vertical", 59),
    Sketcher.Constraint("Horizontal", 63),
    Sketcher.Constraint("Vertical", 67),
    Sketcher.Constraint("Horizontal", 69),
    Sketcher.Constraint("Vertical", 71),
    Sketcher.Constraint("Vertical", 72),
    Sketcher.Constraint("Horizontal", 73),
    Sketcher.Constraint("Vertical", 74),
    Sketcher.Constraint("Horizontal", 75),
    Sketcher.Constraint("Vertical", 76),
    Sketcher.Constraint("Horizontal", 77),
    Sketcher.Constraint("Vertical", 78),
    Sketcher.Constraint("Horizontal", 79),
    Sketcher.Constraint("Vertical", 80),
    Sketcher.Constraint("Horizontal", 81),
    Sketcher.Constraint("Vertical", 82),
    Sketcher.Constraint("Horizontal", 83),
    Sketcher.Constraint("Coincident", 20, 3, 16, 3),
    Sketcher.Constraint("Coincident", 22, 3, 14, 3),
    Sketcher.Constraint("Coincident", 24, 3, 12, 3),
    Sketcher.Constraint("Coincident", 26, 3, 10, 3),
    Sketcher.Constraint("Coincident", 28, 3, 8, 3),
    Sketcher.Constraint("Coincident", 30, 3, 6, 3),
    Sketcher.Constraint("Coincident", 32, 3, 4, 3),
    Sketcher.Constraint("Coincident", 34, 3, 2, 3),
    Sketcher.Constraint("Coincident", 56, 3, 52, 3),
    Sketcher.Constraint("Coincident", 58, 3, 50, 3),
    Sketcher.Constraint("Coincident", 60, 3, 48, 3),
    Sketcher.Constraint("Coincident", 62, 3, 46, 3),
    Sketcher.Constraint("Coincident", 64, 3, 44, 3),
    Sketcher.Constraint("Coincident", 66, 3, 42, 3),
    Sketcher.Constraint("Coincident", 68, 3, 40, 3),
    Sketcher.Constraint("Coincident", 70, 3, 38, 3),
    Sketcher.Constraint("Equal", 4, 6),
    Sketcher.Constraint("Equal", 8, 10),
    Sketcher.Constraint("Equal", 6, 12),
    Sketcher.Constraint("Equal", 12, 14),
    Sketcher.Constraint("Equal", 2, 16),
    Sketcher.Constraint("Equal", 20, 22),
    Sketcher.Constraint("Equal", 24, 30),
    Sketcher.Constraint("Equal", 34, 38),
    Sketcher.Constraint("Equal", 38, 40),
    Sketcher.Constraint("Equal", 40, 42),
    Sketcher.Constraint("Equal", 28, 44),
    Sketcher.Constraint("Equal", 44, 46),
    Sketcher.Constraint("Equal", 42, 48),
    Sketcher.Constraint("Equal", 48, 50),
    Sketcher.Constraint("Equal", 50, 52),
    Sketcher.Constraint("Equal", 16, 56),
    Sketcher.Constraint("Equal", 10, 62),
    Sketcher.Constraint("Equal", 60, 66),
    Sketcher.Constraint("Symmetric", 6, 3, 12, 3, -2),
    Sketcher.Constraint("Symmetric", 2, 3, 16, 3, -2),
    Sketcher.Constraint("Perpendicular", 7, 11),
    Sketcher.Constraint("Parallel", 11, 25),
    Sketcher.Constraint("Parallel", 18, 36),
    Sketcher.Constraint("Perpendicular", 29, 43),
    Sketcher.Constraint("Perpendicular", 43, 47),
    Sketcher.Constraint("Parallel", 0, 54),
    Sketcher.Constraint("Horizontal", 34, 3, 38, 3),
    Sketcher.Constraint("Horizontal", 30, 3, 42, 3),
    Sketcher.Constraint("Horizontal", 28, 3, 44, 3),
    Sketcher.Constraint("Horizontal", 42, 3, 48, 3),
    Sketcher.Constraint("Horizontal", 40, 3, 50, 3),
    Sketcher.Constraint("Horizontal", 7, 2, 10, 1),
    Sketcher.Constraint("Horizontal", 0, 2, 17, 2),
    Sketcher.Constraint("Horizontal", 18, 2, 35, 2),
    Sketcher.Constraint("Horizontal", 35, 2, 36, 2),
    Sketcher.Constraint("Horizontal", 36, 2, 53, 2),
    Sketcher.Constraint("Horizontal", 73, 2, 76, 2),
    Sketcher.Constraint("Horizontal", 75, 2, 78, 2),
    Sketcher.Constraint("Horizontal", 77, 2, 80, 2),
    Sketcher.Constraint("Horizontal", 79, 2, 82, 2),
    Sketcher.Constraint("Equal", 33, 39),
    Sketcher.Constraint("Equal", 27, 45),
    Sketcher.Constraint("Equal", 39, 51),
    Sketcher.Constraint("Radius", 2, Q("0.05 in")),
    Sketcher.Constraint("Radius", 4, Q("0.02 in")),
    Sketcher.Constraint("DistanceY", 72, 2, 72, 1, Q("0.8 in")),
    Sketcher.Constraint("Radius", 8, Q("0.172 in")),
    Sketcher.Constraint("DistanceX", 3, 1, 3, 2, Q("0.175 in")),
    Sketcher.Constraint("DistanceX", 73, 1, 73, 2, Q("0.104 in")),
    Sketcher.Constraint("DistanceX", 77, 1, 77, 2, Q("0.304 in")),
    Sketcher.Constraint("DistanceX", 81, 1, 81, 2, Q("0.604 in")),
    Sketcher.Constraint("DistanceY", 1, 2, 1, 1, Q("0.215 in")),
    Sketcher.Constraint("DistanceY", 19, 2, 19, 1, Q("0.465 in")),
    Sketcher.Constraint("DistanceX", -1, 1, 4, 3, Q("0.37 in")),
    Sketcher.Constraint("DistanceX", -1, 1, 40, 3, Q("6.13 in")),
    Sketcher.Constraint("DistanceY", -1, 1, 26, 2, Q("0.27 in")),
    Sketcher.Constraint("DistanceX", -1, 1, 72, 2, Q("0.95 in")),
    Sketcher.Constraint("DistanceY", 5, 2, 5, 1, Q("0.0224 in")),
    Sketcher.Constraint("DistanceX", -1, 1, 76, 2, Q("3.151 in")),
    Sketcher.Constraint("DistanceX", -1, 1, 80, 2, Q("5.169 in")),
    Sketcher.Constraint("DistanceY", -1, 1, 24, 2, 12.9003),
    Sketcher.Constraint("DistanceY", -1, 1, 72, 2, 110.236878),
])
pocket2 = doc.addObject("PartDesign::Pocket", "Pocket001")
body.addObject(pocket2)
pocket2.Profile = sketch6
pocket2.Length = Q("1.5 in")
pocket2.Reversed = True

doc.recompute()
